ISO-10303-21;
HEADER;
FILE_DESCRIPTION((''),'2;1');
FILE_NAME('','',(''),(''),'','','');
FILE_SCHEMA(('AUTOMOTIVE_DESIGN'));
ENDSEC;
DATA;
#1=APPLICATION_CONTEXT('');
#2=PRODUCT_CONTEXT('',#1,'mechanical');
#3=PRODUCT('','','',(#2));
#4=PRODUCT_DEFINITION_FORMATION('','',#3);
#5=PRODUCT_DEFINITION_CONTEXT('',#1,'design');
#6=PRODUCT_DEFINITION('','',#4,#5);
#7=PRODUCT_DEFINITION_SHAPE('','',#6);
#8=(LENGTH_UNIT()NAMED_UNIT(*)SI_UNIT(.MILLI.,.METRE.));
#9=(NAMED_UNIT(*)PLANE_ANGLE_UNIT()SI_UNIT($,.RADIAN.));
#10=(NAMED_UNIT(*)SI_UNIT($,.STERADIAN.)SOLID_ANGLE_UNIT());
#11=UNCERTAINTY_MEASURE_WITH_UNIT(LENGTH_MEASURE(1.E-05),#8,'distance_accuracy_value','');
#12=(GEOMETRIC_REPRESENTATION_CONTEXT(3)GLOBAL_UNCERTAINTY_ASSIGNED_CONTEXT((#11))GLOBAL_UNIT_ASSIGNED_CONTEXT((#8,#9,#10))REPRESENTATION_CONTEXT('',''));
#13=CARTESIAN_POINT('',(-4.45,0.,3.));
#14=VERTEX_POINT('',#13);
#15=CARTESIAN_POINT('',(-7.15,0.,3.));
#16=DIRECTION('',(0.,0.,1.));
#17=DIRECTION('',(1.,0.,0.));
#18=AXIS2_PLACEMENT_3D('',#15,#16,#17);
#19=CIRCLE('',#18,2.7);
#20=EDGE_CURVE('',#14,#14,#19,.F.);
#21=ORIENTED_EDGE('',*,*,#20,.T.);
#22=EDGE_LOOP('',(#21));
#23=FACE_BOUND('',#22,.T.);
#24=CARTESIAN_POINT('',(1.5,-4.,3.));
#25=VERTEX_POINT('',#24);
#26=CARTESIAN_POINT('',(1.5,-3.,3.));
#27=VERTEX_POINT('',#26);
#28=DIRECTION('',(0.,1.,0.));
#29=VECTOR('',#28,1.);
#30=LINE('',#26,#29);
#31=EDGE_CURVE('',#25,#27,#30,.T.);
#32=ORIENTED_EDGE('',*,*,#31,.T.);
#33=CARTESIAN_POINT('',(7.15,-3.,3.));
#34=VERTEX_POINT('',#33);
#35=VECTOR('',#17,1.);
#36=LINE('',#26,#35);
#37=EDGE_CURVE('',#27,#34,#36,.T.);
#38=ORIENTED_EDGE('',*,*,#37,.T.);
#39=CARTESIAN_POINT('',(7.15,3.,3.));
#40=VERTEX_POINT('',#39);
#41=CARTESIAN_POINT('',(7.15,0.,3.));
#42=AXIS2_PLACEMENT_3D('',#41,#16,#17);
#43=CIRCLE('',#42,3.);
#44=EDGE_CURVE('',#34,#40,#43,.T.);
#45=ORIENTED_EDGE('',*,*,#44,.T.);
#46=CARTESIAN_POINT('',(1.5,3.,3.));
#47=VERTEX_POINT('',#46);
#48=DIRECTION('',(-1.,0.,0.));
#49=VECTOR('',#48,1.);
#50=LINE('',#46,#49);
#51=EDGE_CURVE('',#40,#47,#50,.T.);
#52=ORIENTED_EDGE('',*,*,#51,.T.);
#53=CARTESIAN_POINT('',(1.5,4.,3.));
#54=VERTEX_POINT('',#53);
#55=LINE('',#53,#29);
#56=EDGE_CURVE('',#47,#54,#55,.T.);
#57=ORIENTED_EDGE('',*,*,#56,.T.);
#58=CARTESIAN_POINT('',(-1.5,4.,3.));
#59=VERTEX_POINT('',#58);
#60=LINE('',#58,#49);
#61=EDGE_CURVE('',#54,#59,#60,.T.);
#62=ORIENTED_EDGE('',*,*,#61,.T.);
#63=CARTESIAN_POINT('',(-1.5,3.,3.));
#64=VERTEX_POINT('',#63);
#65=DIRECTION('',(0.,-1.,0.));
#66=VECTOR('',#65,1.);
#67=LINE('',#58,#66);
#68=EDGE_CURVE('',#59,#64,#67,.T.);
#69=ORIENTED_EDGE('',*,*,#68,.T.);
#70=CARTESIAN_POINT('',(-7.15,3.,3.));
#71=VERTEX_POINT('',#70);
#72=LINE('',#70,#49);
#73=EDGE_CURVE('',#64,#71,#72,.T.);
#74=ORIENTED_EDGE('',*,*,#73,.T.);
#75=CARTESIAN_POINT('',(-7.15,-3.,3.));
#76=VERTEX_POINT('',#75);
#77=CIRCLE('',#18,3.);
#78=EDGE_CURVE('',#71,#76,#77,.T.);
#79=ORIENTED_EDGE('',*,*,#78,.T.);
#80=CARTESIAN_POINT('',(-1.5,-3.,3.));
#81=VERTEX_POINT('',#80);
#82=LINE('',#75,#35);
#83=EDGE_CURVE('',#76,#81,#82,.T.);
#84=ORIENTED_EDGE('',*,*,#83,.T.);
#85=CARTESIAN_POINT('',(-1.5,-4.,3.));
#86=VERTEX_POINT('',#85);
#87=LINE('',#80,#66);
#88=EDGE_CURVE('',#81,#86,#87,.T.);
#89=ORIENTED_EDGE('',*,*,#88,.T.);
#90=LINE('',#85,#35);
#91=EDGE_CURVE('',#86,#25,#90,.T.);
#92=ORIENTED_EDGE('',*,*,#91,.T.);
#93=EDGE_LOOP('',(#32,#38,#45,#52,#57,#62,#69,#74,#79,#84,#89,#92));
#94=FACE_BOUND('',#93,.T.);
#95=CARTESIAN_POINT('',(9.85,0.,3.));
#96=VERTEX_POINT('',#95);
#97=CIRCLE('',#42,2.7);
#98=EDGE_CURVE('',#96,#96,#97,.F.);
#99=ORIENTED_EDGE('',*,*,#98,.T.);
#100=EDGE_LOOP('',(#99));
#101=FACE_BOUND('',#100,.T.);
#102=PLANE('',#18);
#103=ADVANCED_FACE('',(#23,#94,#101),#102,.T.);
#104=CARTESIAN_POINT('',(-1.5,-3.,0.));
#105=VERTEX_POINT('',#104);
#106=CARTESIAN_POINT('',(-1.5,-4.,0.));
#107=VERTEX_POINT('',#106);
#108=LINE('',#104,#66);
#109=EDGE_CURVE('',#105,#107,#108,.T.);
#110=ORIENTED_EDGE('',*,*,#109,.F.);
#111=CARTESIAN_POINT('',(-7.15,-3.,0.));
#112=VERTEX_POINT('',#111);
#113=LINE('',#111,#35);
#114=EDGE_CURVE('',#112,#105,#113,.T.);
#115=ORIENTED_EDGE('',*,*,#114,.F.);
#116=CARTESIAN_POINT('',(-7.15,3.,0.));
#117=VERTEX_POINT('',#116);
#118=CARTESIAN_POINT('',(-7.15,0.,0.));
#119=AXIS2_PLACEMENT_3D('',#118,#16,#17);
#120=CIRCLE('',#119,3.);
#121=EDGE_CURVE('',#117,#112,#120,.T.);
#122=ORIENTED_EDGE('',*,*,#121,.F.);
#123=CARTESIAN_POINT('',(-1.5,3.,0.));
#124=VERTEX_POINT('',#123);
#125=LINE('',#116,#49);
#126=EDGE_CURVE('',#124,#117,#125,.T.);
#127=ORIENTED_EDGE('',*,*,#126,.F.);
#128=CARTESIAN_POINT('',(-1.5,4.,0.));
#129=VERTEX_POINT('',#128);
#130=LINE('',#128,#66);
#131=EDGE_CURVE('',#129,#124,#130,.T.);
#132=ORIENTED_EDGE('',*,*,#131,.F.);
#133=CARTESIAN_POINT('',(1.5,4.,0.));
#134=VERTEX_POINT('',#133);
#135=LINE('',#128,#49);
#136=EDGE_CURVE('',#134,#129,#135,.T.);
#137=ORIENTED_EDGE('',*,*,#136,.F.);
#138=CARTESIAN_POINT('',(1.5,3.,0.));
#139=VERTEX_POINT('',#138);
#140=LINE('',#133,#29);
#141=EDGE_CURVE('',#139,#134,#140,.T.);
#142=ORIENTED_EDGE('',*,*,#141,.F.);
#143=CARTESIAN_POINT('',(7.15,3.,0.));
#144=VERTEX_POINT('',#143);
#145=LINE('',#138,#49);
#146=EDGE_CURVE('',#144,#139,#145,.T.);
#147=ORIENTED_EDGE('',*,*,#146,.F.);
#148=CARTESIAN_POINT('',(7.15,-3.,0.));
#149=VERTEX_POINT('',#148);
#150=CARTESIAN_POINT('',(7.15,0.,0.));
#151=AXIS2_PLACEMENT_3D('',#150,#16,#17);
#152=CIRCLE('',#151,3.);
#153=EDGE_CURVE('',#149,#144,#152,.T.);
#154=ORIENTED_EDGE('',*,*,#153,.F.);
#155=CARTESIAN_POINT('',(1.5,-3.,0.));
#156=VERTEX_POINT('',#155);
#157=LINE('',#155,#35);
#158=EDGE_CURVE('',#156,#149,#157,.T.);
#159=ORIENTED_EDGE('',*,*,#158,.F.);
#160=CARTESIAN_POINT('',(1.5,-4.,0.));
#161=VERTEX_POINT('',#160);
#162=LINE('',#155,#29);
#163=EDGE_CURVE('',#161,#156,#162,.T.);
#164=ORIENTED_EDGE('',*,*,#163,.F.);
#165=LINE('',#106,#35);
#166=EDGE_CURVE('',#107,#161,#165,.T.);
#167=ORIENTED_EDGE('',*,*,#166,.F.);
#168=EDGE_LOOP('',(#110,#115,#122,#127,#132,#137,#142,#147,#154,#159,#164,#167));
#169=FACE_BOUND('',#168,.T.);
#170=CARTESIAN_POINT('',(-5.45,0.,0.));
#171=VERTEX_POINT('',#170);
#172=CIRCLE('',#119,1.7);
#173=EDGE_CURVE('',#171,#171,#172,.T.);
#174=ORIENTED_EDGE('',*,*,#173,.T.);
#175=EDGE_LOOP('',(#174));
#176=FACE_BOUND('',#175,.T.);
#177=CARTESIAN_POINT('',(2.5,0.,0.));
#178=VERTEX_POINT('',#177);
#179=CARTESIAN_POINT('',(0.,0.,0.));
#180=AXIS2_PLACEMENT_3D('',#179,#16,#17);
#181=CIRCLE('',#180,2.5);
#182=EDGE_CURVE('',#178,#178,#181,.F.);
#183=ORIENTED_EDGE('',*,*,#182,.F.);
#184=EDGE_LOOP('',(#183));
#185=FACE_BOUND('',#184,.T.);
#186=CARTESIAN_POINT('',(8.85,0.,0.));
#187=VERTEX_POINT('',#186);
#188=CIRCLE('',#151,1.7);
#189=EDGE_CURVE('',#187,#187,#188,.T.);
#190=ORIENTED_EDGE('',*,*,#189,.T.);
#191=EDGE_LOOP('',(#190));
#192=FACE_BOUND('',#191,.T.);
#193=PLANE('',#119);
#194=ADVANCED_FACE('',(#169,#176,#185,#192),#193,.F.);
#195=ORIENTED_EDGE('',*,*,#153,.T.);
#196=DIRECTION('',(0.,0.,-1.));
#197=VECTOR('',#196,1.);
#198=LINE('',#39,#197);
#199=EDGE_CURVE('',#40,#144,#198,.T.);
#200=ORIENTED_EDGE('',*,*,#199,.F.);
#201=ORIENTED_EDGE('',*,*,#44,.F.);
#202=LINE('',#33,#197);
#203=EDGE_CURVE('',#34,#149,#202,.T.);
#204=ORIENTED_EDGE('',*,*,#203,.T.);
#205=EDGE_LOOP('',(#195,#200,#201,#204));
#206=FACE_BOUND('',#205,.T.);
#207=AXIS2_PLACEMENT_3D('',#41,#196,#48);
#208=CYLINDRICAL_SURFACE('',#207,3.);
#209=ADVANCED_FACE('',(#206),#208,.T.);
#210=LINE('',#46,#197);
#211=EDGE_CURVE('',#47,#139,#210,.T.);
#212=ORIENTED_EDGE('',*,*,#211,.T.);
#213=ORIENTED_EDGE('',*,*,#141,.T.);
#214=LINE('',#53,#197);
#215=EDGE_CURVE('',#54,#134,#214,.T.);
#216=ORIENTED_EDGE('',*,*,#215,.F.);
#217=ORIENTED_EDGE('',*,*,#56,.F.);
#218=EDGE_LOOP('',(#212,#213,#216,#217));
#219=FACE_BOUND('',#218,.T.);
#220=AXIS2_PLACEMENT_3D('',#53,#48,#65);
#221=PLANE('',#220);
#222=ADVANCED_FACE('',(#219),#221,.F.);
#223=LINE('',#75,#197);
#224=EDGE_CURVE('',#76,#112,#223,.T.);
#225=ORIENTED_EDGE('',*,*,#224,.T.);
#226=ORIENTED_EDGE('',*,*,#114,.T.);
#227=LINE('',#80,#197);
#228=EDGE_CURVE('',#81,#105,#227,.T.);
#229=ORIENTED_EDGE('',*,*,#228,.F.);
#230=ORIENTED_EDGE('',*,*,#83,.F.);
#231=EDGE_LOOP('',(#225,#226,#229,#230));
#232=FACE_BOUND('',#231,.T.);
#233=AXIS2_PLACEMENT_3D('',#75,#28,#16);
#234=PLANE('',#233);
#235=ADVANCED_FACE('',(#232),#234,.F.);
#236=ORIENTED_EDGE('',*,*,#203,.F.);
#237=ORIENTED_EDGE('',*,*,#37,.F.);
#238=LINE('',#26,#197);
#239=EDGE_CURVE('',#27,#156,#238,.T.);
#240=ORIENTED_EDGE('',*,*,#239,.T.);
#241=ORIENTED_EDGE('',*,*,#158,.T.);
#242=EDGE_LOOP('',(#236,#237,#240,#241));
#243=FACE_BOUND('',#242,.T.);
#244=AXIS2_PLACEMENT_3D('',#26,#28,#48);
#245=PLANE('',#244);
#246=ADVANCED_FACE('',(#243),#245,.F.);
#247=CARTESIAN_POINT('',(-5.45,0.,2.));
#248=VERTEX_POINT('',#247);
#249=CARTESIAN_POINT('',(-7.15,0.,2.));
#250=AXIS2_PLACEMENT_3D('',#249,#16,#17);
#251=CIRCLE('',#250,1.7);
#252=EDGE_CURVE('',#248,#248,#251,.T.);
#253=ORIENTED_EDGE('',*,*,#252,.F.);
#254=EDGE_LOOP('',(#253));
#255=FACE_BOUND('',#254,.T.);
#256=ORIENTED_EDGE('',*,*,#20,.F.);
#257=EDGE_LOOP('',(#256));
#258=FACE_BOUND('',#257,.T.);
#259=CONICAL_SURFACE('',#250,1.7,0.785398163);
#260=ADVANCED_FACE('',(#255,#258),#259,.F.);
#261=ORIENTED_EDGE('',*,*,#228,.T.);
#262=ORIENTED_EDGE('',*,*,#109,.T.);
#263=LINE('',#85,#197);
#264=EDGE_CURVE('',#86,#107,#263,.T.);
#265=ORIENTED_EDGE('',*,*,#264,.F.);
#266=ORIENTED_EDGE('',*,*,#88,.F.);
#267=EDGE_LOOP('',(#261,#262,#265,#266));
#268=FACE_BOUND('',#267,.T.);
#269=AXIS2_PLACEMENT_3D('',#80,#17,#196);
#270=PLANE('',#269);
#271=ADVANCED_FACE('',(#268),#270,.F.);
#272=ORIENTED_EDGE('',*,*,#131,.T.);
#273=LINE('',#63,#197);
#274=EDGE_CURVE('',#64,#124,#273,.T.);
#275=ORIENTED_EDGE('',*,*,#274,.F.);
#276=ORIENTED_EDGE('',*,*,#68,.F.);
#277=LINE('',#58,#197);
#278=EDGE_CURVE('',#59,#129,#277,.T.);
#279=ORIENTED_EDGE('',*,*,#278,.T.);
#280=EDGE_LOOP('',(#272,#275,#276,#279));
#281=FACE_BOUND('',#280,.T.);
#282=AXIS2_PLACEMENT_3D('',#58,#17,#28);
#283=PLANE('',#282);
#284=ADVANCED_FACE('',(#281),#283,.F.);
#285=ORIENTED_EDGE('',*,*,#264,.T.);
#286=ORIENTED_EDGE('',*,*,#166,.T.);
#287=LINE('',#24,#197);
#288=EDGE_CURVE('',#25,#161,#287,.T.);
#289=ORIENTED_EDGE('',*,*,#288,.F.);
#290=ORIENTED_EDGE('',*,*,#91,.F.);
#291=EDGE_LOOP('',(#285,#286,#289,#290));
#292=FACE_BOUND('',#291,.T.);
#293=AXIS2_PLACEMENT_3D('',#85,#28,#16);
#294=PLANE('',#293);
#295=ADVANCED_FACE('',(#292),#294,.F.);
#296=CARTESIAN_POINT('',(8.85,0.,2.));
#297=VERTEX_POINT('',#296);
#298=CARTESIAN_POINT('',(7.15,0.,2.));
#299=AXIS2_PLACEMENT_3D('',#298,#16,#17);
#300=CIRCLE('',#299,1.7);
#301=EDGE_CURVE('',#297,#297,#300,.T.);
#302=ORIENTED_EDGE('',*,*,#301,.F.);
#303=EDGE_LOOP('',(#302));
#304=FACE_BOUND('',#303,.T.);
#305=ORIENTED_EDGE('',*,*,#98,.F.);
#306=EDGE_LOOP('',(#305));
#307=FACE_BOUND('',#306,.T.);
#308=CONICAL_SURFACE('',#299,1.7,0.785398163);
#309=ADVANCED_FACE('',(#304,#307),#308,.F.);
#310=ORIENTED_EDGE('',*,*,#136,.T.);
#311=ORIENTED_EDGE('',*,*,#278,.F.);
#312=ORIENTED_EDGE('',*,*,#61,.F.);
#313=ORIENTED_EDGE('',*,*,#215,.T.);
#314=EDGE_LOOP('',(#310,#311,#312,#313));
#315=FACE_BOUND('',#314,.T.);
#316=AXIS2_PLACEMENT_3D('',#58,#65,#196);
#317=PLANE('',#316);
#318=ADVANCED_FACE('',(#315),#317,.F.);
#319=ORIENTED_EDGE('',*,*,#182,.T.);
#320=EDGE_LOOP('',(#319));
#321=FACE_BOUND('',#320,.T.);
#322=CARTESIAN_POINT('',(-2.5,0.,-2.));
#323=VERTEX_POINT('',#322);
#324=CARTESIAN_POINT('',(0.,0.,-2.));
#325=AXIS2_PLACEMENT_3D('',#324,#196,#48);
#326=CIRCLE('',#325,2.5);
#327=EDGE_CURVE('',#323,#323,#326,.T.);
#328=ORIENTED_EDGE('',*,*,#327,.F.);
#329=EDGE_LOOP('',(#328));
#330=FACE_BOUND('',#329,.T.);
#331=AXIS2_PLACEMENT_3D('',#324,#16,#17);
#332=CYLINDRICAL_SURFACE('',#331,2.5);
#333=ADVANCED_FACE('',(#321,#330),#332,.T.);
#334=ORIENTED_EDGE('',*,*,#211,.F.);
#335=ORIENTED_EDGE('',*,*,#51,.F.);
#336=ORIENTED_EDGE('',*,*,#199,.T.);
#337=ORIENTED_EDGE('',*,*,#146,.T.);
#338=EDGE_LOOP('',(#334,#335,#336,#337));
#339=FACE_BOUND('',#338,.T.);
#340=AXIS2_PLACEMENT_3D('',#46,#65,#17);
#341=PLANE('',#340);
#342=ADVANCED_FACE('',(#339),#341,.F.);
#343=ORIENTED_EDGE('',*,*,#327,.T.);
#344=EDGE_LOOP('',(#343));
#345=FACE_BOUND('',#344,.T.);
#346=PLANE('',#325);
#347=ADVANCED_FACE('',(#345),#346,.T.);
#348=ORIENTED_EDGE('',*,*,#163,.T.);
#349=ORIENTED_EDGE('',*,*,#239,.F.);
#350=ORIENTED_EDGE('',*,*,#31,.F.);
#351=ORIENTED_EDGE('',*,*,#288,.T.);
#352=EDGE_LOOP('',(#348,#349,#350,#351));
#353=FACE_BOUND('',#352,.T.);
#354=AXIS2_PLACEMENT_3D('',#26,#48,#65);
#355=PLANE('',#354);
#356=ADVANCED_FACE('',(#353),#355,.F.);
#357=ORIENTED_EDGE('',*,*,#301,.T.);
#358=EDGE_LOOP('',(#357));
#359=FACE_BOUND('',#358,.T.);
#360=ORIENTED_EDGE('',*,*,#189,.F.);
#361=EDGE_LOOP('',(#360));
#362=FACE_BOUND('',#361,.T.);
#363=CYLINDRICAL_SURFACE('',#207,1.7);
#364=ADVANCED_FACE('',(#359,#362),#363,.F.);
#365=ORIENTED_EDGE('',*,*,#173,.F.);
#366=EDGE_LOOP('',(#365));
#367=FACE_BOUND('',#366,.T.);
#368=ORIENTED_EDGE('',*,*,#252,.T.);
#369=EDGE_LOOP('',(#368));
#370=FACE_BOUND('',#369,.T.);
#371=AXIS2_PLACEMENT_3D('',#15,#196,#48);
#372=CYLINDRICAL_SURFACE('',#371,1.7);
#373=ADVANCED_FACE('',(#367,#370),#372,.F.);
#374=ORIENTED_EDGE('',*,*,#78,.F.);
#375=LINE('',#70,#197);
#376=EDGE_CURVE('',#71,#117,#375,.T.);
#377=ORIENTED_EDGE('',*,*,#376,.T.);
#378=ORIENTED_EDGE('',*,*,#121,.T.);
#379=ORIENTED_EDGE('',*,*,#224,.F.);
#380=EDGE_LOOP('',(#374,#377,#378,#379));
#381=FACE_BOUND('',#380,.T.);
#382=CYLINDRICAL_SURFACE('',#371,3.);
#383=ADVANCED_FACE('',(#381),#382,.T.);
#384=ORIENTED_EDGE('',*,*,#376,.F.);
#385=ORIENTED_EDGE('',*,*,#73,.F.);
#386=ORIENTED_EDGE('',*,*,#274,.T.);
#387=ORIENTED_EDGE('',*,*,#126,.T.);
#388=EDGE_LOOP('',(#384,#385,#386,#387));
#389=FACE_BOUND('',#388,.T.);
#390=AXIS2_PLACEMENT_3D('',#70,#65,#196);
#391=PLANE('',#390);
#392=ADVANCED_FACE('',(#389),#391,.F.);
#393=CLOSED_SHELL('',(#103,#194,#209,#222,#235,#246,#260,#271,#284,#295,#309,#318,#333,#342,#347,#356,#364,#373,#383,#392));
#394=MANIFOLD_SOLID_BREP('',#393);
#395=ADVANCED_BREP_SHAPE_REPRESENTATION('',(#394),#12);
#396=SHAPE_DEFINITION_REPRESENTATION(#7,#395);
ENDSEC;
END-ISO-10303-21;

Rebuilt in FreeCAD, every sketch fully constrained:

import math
import FreeCAD as App
import Part
import Sketcher
from FreeCAD import Vector
Q = App.Units.Quantity


def edges_at(feature, points):
    """Names of the edges that pass closest to the given points."""
    edges = feature.Shape.Edges
    near = lambda p: min(range(len(edges)), key=lambda i: edges[i].distToShape(Part.Vertex(*p))[0])
    return sorted({f"Edge{near(p) + 1}" for p in points})

doc = App.newDocument("Part")
params = doc.addObject("Spreadsheet::Sheet", "Params")
for row, (alias, value) in enumerate([
    ("sketch1_radius", "3 mm"),
    ("sketch1_diameter", "3.4 mm"),
    ("sketch1_width", "3 mm"),
    ("sketch1_height", "1 mm"),
    ("sketch1_width2", "5.65 mm"),
    ("pad1_length", "3 mm"),
    ("chamfer_size", "1 mm"),
    ("sketch2_diameter", "5 mm"),
    ("pad2_length", "2 mm"),
], start=1):
    params.set(f"A{row}", alias)
    params.set(f"B{row}", "=" + value)
    params.setAlias(f"B{row}", alias)

body = doc.addObject("PartDesign::Body", "Body")

# Sketch on XY plane
sketch1 = body.newObject("Sketcher::SketchObject", "Sketch")
sketch1.AttachmentSupport = (doc.getObject("XY_Plane"), [""])
sketch1.MapMode = "FlatFace"
sketch1.addGeometry(Part.LineSegment(Vector(-1.5, 3, 0), Vector(-7.2, 3, 0)), False)
sketch1.addGeometry(Part.ArcOfCircle(Part.Circle(Vector(-7.2, 0, 0), Vector(0, 0, 1), 3), math.radians(90), math.radians(270)), False)
sketch1.addGeometry(Part.LineSegment(Vector(-7.2, -3, 0), Vector(-1.5, -3, 0)), False)
sketch1.addGeometry(Part.LineSegment(Vector(-1.5, -3, 0), Vector(-1.5, -4, 0)), False)
sketch1.addGeometry(Part.LineSegment(Vector(-1.5, -4, 0), Vector(1.5, -4, 0)), False)
sketch1.addGeometry(Part.LineSegment(Vector(1.5, -4, 0), Vector(1.5, -3, 0)), False)
sketch1.addGeometry(Part.LineSegment(Vector(1.5, -3, 0), Vector(7.2, -3, 0)), False)
sketch1.addGeometry(Part.ArcOfCircle(Part.Circle(Vector(7.2, 0, 0), Vector(0, 0, 1), 3), math.radians(-90), math.radians(90)), False)
sketch1.addGeometry(Part.LineSegment(Vector(7.2, 3, 0), Vector(1.5, 3, 0)), False)
sketch1.addGeometry(Part.LineSegment(Vector(1.5, 3, 0), Vector(1.5, 4, 0)), False)
sketch1.addGeometry(Part.LineSegment(Vector(1.5, 4, 0), Vector(-1.5, 4, 0)), False)
sketch1.addGeometry(Part.LineSegment(Vector(-1.5, 4, 0), Vector(-1.5, 3, 0)), False)
sketch1.addGeometry(Part.Circle(Vector(7.2, 0, 0), Vector(0, 0, 1), 1.7), False)
sketch1.addGeometry(Part.Circle(Vector(-7.2, 0, 0), Vector(0, 0, 1), 1.7), False)
sketch1.addConstraint(Sketcher.Constraint("Tangent", 0, 2, 1, 1))
sketch1.addConstraint(Sketcher.Constraint("Tangent", 1, 2, 2, 1))
sketch1.addConstraint(Sketcher.Constraint("Coincident", 2, 2, 3, 1))
sketch1.addConstraint(Sketcher.Constraint("Coincident", 3, 2, 4, 1))
sketch1.addConstraint(Sketcher.Constraint("Coincident", 4, 2, 5, 1))
sketch1.addConstraint(Sketcher.Constraint("Coincident", 5, 2, 6, 1))
sketch1.addConstraint(Sketcher.Constraint("Tangent", 6, 2, 7, 1))
sketch1.addConstraint(Sketcher.Constraint("Tangent", 7, 2, 8, 1))
sketch1.addConstraint(Sketcher.Constraint("Coincident", 8, 2, 9, 1))
sketch1.addConstraint(Sketcher.Constraint("Coincident", 9, 2, 10, 1))
sketch1.addConstraint(Sketcher.Constraint("Coincident", 10, 2, 11, 1))
sketch1.addConstraint(Sketcher.Constraint("Coincident", 11, 2, 0, 1))
sketch1.addConstraint(Sketcher.Constraint("Horizontal", 0))
sketch1.addConstraint(Sketcher.Constraint("Horizontal", 2))
sketch1.addConstraint(Sketcher.Constraint("Vertical", 3))
sketch1.addConstraint(Sketcher.Constraint("Horizontal", 4))
sketch1.addConstraint(Sketcher.Constraint("Vertical", 5))
sketch1.addConstraint(Sketcher.Constraint("Horizontal", 6))
sketch1.addConstraint(Sketcher.Constraint("Horizontal", 8))
sketch1.addConstraint(Sketcher.Constraint("Vertical", 9))
sketch1.addConstraint(Sketcher.Constraint("Horizontal", 10))
sketch1.addConstraint(Sketcher.Constraint("Vertical", 11))
sketch1.addConstraint(Sketcher.Constraint("Coincident", 12, 3, 7, 3))
sketch1.addConstraint(Sketcher.Constraint("Coincident", 13, 3, 1, 3))
sketch1.addConstraint(Sketcher.Constraint("Equal", 1, 7))
sketch1.addConstraint(Sketcher.Constraint("Equal", 12, 13))
sketch1.addConstraint(Sketcher.Constraint("Symmetric", 1, 3, 7, 3, -1, 1))
sketch1.addConstraint(Sketcher.Constraint("Symmetric", 3, 2, 9, 2, -1, 1))
sketch1.addConstraint(Sketcher.Constraint("Symmetric", 2, 2, 5, 2, -2))
sketch1.addConstraint(Sketcher.Constraint("Vertical", 3, 2, 10, 2))
sketch1.addConstraint(Sketcher.Constraint("Radius", 1, Q("3 mm")))
sketch1.addConstraint(Sketcher.Constraint("Diameter", 12, Q("3.4 mm")))
sketch1.addConstraint(Sketcher.Constraint("DistanceX", 4, 1, 4, 2, Q("3 mm")))
sketch1.addConstraint(Sketcher.Constraint("DistanceY", 3, 2, 3, 1, Q("1 mm")))
sketch1.addConstraint(Sketcher.Constraint("DistanceX", 0, 2, 0, 1, Q("5.65 mm")))
sketch1.setExpression("Constraints[30]", "Params.sketch1_radius")
sketch1.setExpression("Constraints[31]", "Params.sketch1_diameter")
sketch1.setExpression("Constraints[32]", "Params.sketch1_width")
sketch1.setExpression("Constraints[33]", "Params.sketch1_height")
sketch1.setExpression("Constraints[34]", "Params.sketch1_width2")
pad1 = body.newObject("PartDesign::Pad", "Pad")
pad1.Profile = sketch1
pad1.setExpression("Length", "Params.pad1_length")
doc.recompute()

chamfer = body.newObject("PartDesign::Chamfer", "Chamfer")
chamfer.Base = (pad1, edges_at(pad1, [(5.45, 0, 3), (-8.85, 0, 3)]))
chamfer.setExpression("Size", "Params.chamfer_size")

# Sketch on XY plane
sketch2 = body.newObject("Sketcher::SketchObject", "Sketch001")
sketch2.AttachmentSupport = (doc.getObject("XY_Plane"), [""])
sketch2.MapMode = "FlatFace"
sketch2.addGeometry(Part.Circle(Vector(0, 0, 0), Vector(0, 0, 1), 2.5), False)
sketch2.addConstraint(Sketcher.Constraint("Coincident", 0, 3, -1, 1))
sketch2.addConstraint(Sketcher.Constraint("Diameter", 0, Q("5 mm")))
sketch2.setExpression("Constraints[1]", "Params.sketch2_diameter")
pad2 = body.newObject("PartDesign::Pad", "Pad001")
pad2.Profile = sketch2
pad2.setExpression("Length", "Params.pad2_length")
pad2.Reversed = True

doc.recompute()
